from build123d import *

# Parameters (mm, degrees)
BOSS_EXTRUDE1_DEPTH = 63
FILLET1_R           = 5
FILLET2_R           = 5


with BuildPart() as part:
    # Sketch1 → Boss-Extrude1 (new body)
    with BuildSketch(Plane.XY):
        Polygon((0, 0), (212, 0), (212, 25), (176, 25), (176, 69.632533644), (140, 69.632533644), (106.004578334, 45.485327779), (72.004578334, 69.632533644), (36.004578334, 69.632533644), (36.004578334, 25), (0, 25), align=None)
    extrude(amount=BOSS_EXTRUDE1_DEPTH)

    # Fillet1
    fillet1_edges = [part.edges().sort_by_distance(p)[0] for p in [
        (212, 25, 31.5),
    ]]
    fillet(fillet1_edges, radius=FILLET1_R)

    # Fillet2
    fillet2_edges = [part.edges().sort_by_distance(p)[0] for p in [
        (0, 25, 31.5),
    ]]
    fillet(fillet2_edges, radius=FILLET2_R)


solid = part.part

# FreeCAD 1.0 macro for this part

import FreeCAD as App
import Part
import Sketcher
Q = App.Units.Quantity


def edges_at(feature, points):
    """Names of the edges that pass closest to the given points."""
    edges = feature.Shape.Edges
    near = lambda p: min(range(len(edges)), key=lambda i: edges[i].distToShape(Part.Vertex(*p))[0])
    return sorted({f"Edge{near(p) + 1}" for p in points})

doc = App.newDocument("Part")
body = doc.addObject("PartDesign::Body", "Body")

# Sketch on XY plane
sketch1 = body.newObject("Sketcher::SketchObject", "Sketch")
sketch1.AttachmentSupport = (doc.getObject("XY_Plane"), [""])
sketch1.MapMode = "FlatFace"
sketch1.addGeometry([
    Part.LineSegment(App.Vector(0, 0, 0), App.Vector(212, 0, 0)),  # 0
    Part.LineSegment(App.Vector(212, 0, 0), App.Vector(212, 25, 0)),  # 1
    Part.LineSegment(App.Vector(212, 25, 0), App.Vector(176, 25, 0)),  # 2
    Part.LineSegment(App.Vector(176, 25, 0), App.Vector(176, 69.632534, 0)),  # 3
    Part.LineSegment(App.Vector(176, 69.632534, 0), App.Vector(140, 69.632534, 0)),  # 4
    Part.LineSegment(App.Vector(140, 69.632534, 0), App.Vector(106.004578, 45.485328, 0)),  # 5
    Part.LineSegment(App.Vector(106.004578, 45.485328, 0), App.Vector(72.004578, 69.632534, 0)),  # 6
    Part.LineSegment(App.Vector(72.004578, 69.632534, 0), App.Vector(36.004578, 69.632534, 0)),  # 7
    Part.LineSegment(App.Vector(36.004578, 69.632534, 0), App.Vector(36.004578, 25, 0)),  # 8
    Part.LineSegment(App.Vector(36.004578, 25, 0), App.Vector(0, 25, 0)),  # 9
    Part.LineSegment(App.Vector(0, 25, 0), App.Vector(0, 0, 0)),  # 10
], False)
sketch1.addConstraint([
    Sketcher.Constraint("Coincident", 0, 2, 1, 1),
    Sketcher.Constraint("Coincident", 1, 2, 2, 1),
    Sketcher.Constraint("Coincident", 2, 2, 3, 1),
    Sketcher.Constraint("Coincident", 3, 2, 4, 1),
    Sketcher.Constraint("Coincident", 4, 2, 5, 1),
    Sketcher.Constraint("Coincident", 5, 2, 6, 1),
    Sketcher.Constraint("Coincident", 6, 2, 7, 1),
    Sketcher.Constraint("Coincident", 7, 2, 8, 1),
    Sketcher.Constraint("Coincident", 8, 2, 9, 1),
    Sketcher.Constraint("Coincident", 9, 2, 10, 1),
    Sketcher.Constraint("Coincident", 10, 2, 0, 1),
    Sketcher.Constraint("Horizontal", 0),
    Sketcher.Constraint("Vertical", 1),
    Sketcher.Constraint("Horizontal", 2),
    Sketcher.Constraint("Vertical", 3),
    Sketcher.Constraint("Horizontal", 4),
    Sketcher.Constraint("Horizontal", 7),
    Sketcher.Constraint("Vertical", 8),
    Sketcher.Constraint("Horizontal", 9),
    Sketcher.Constraint("Vertical", 10),
    Sketcher.Constraint("Coincident", 10, 2, -1, 1),
    Sketcher.Constraint("Horizontal", 4, 2, 6, 2),
    Sketcher.Constraint("Horizontal", 2, 2, 8, 2),
    Sketcher.Constraint("Equal", 2, 4),
    Sketcher.Constraint("Equal", 4, 7),
    Sketcher.Constraint("DistanceX", 0, 1, 0, 2, Q("212 mm")),
    Sketcher.Constraint("DistanceX", 2, 2, 2, 1, Q("36 mm")),
    Sketcher.Constraint("DistanceY", 1, 1, 1, 2, Q("25 mm")),
    Sketcher.Constraint("DistanceX", 6, 2, 5, 2, Q("34 mm")),
    Sketcher.Constraint("DistanceX", 9, 2, 9, 1, Q("36.004578 mm")),
    Sketcher.Constraint("Distance", 6, Q("41.702369 mm")),
    Sketcher.Constraint("DistanceY", 3, 1, 3, 2, Q("44.632534 mm")),
])
pad1 = body.newObject("PartDesign::Pad", "Pad")
pad1.Profile = sketch1
pad1.Length = 63
doc.recompute()

fillet = body.newObject("PartDesign::Fillet", "Fillet")
fillet.Base = (pad1, edges_at(pad1, [(212, 25, 31.5)]))
fillet.Radius = 5
doc.recompute()

fillet2 = body.newObject("PartDesign::Fillet", "Fillet001")
fillet2.Base = (fillet, edges_at(fillet, [(0, 25, 31.5)]))
fillet2.Radius = 5

doc.recompute()
